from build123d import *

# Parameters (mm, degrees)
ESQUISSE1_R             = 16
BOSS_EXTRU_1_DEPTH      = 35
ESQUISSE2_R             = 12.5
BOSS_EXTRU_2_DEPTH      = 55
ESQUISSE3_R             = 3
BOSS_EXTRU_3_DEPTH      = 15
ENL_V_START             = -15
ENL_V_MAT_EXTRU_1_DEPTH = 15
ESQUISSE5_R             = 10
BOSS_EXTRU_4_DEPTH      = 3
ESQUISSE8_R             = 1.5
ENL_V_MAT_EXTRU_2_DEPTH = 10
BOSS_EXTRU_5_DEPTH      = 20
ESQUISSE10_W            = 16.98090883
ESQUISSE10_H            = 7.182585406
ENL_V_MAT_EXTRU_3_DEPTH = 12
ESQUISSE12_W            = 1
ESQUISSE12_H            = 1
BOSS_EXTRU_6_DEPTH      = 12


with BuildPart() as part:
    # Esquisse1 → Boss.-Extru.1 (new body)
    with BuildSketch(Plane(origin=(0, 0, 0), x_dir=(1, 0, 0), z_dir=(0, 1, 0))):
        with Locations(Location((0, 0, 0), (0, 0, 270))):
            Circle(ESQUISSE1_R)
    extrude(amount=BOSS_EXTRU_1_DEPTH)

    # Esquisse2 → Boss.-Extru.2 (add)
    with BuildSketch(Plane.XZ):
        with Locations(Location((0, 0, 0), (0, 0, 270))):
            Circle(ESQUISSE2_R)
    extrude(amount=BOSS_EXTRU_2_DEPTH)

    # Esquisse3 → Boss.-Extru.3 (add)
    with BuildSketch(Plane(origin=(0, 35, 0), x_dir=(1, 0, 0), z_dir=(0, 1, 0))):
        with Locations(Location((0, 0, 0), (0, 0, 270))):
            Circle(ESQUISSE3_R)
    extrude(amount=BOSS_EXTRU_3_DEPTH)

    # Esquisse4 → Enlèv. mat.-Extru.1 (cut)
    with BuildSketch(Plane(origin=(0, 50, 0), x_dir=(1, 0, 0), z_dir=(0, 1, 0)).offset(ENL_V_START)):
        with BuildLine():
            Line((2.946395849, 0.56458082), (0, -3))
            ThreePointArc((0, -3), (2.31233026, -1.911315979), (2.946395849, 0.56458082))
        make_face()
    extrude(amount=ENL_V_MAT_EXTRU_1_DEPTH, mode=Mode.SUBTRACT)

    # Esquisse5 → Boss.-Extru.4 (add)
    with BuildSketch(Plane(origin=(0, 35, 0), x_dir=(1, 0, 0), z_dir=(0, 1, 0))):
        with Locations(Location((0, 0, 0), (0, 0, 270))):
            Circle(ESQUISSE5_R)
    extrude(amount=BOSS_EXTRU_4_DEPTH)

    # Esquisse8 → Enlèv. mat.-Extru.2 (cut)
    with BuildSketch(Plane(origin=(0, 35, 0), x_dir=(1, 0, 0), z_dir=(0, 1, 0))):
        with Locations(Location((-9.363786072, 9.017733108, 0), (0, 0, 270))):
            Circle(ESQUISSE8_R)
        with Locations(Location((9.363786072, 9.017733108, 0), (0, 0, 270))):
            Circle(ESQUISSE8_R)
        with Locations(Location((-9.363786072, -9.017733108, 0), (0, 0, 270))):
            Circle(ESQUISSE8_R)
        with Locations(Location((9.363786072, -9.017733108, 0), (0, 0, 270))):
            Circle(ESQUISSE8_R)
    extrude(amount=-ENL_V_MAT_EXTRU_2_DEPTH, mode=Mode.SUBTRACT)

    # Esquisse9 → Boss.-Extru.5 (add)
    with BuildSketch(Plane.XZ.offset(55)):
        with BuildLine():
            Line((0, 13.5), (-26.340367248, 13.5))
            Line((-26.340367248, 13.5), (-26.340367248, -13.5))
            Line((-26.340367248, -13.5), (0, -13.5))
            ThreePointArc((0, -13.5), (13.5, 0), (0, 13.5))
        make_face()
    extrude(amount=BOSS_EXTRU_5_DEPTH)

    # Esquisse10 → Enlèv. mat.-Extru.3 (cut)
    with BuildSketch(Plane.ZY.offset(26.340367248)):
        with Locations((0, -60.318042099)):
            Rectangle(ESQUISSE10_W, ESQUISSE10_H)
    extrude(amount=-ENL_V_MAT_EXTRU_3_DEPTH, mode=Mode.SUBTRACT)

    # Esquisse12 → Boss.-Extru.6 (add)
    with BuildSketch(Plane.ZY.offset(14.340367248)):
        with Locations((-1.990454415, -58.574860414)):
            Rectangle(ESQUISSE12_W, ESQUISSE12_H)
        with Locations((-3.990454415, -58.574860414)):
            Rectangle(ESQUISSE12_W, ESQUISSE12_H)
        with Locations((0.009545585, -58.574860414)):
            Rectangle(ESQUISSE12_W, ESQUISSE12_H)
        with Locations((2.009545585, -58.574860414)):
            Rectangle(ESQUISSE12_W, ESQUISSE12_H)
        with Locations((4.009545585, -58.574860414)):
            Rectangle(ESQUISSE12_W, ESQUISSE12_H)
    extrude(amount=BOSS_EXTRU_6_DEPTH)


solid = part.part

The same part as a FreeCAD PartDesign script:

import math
import FreeCAD as App
import Part
import Sketcher

V = App.Vector


def add_polygon(sketch, points):
    """Adds a closed chain of lines whose ends are joined by coincident constraints."""
    first, n = sketch.GeometryCount, len(points)
    for a, b in zip(points, points[1:] + points[:1]):
        sketch.addGeometry(Part.LineSegment(App.Vector(*a, 0), App.Vector(*b, 0)), False)
    for i in range(n):
        sketch.addConstraint(Sketcher.Constraint("Coincident", first + i, 2, first + (i + 1) % n, 1))

doc = App.newDocument("Part")
body = doc.addObject("PartDesign::Body", "Body")

# Sketch on XZ plane
sketch1 = doc.addObject("Sketcher::SketchObject", "Sketch")
body.addObject(sketch1)
sketch1.AttachmentSupport = (doc.XZ_Plane, [""])
sketch1.MapMode = "FlatFace"
sketch1.addGeometry(Part.Circle(V(0, 0, 0), V(0, 0, 1), 16), False)
sketch1.addConstraint(Sketcher.Constraint("Coincident", 0, 3, -1, 1))
sketch1.addConstraint(Sketcher.Constraint("Diameter", 0, 32.0))
pad1 = doc.addObject("PartDesign::Pad", "Pad")
body.addObject(pad1)
pad1.Profile = sketch1
pad1.Length = 35
pad1.Reversed = True

# Sketch on XZ plane
sketch2 = doc.addObject("Sketcher::SketchObject", "Sketch001")
body.addObject(sketch2)
sketch2.AttachmentSupport = (doc.XZ_Plane, [""])
sketch2.MapMode = "FlatFace"
sketch2.addGeometry(Part.Circle(V(0, 0, 0), V(0, 0, 1), 12.5), False)
sketch2.addConstraint(Sketcher.Constraint("Coincident", 0, 3, -1, 1))
sketch2.addConstraint(Sketcher.Constraint("Diameter", 0, 25.0))
pad2 = doc.addObject("PartDesign::Pad", "Pad001")
body.addObject(pad2)
pad2.Profile = sketch2
pad2.Length = 55

# Sketch on XZ plane
sketch3 = doc.addObject("Sketcher::SketchObject", "Sketch002")
body.addObject(sketch3)
sketch3.AttachmentSupport = (doc.XZ_Plane, [""])
sketch3.MapMode = "FlatFace"
sketch3.AttachmentOffset = App.Placement(V(0, 0, -35), App.Rotation())
sketch3.addGeometry(Part.Circle(V(0, 0, 0), V(0, 0, 1), 3), False)
sketch3.addConstraint(Sketcher.Constraint("Coincident", 0, 3, -1, 1))
sketch3.addConstraint(Sketcher.Constraint("Diameter", 0, 6.0))
pad3 = doc.addObject("PartDesign::Pad", "Pad002")
body.addObject(pad3)
pad3.Profile = sketch3
pad3.Length = 15
pad3.Reversed = True

# Sketch on XZ plane
sketch4 = doc.addObject("Sketcher::SketchObject", "Sketch003")
body.addObject(sketch4)
sketch4.AttachmentSupport = (doc.XZ_Plane, [""])
sketch4.MapMode = "FlatFace"
sketch4.AttachmentOffset = App.Placement(V(0, 0, -35), App.Rotation())
sketch4.addGeometry(Part.LineSegment(V(2.946396, -0.564581, 0), V(0, 3, 0)), False)
sketch4.addGeometry(Part.ArcOfCircle(Part.Circle(V(0, 0, 0), V(0, 0, 1), 3), math.radians(-10.847384), math.radians(90)), False)
sketch4.addConstraint(Sketcher.Constraint("Coincident", 0, 1, 1, 1))
sketch4.addConstraint(Sketcher.Constraint("Coincident", 1, 2, 0, 2))
sketch4.addConstraint(Sketcher.Constraint("Coincident", 1, 3, -1, 1))
sketch4.addConstraint(Sketcher.Constraint("PointOnObject", 1, 2, -2))
sketch4.addConstraint(Sketcher.Constraint("Radius", 1, 3.0))
sketch4.addConstraint(Sketcher.Constraint("Distance", 0, 4.624661))
pocket1 = doc.addObject("PartDesign::Pocket", "Pocket")
body.addObject(pocket1)
pocket1.Profile = sketch4
pocket1.Length = 15

# Sketch on XZ plane
sketch5 = doc.addObject("Sketcher::SketchObject", "Sketch004")
body.addObject(sketch5)
sketch5.AttachmentSupport = (doc.XZ_Plane, [""])
sketch5.MapMode = "FlatFace"
sketch5.AttachmentOffset = App.Placement(V(0, 0, -35), App.Rotation())
sketch5.addGeometry(Part.Circle(V(0, 0, 0), V(0, 0, 1), 10), False)
sketch5.addConstraint(Sketcher.Constraint("Coincident", 0, 3, -1, 1))
sketch5.addConstraint(Sketcher.Constraint("Diameter", 0, 20.0))
pad4 = doc.addObject("PartDesign::Pad", "Pad003")
body.addObject(pad4)
pad4.Profile = sketch5
pad4.Length = 3
pad4.Reversed = True

# Sketch on XZ plane
sketch6 = doc.addObject("Sketcher::SketchObject", "Sketch005")
body.addObject(sketch6)
sketch6.AttachmentSupport = (doc.XZ_Plane, [""])
sketch6.MapMode = "FlatFace"
sketch6.AttachmentOffset = App.Placement(V(0, 0, -35), App.Rotation())
sketch6.addGeometry(Part.Circle(V(-9.363786, -9.017733, 0), V(0, 0, 1), 1.5), False)
sketch6.addGeometry(Part.Circle(V(9.363786, -9.017733, 0), V(0, 0, 1), 1.5), False)
sketch6.addGeometry(Part.Circle(V(-9.363786, 9.017733, 0), V(0, 0, 1), 1.5), False)
sketch6.addGeometry(Part.Circle(V(9.363786, 9.017733, 0), V(0, 0, 1), 1.5), False)
sketch6.addConstraint(Sketcher.Constraint("Equal", 0, 1))
sketch6.addConstraint(Sketcher.Constraint("Equal", 1, 2))
sketch6.addConstraint(Sketcher.Constraint("Equal", 2, 3))
sketch6.addConstraint(Sketcher.Constraint("Symmetric", 1, 3, 2, 3, -1, 1))
sketch6.addConstraint(Sketcher.Constraint("Symmetric", 0, 3, 3, 3, -1, 1))
sketch6.addConstraint(Sketcher.Constraint("Symmetric", 0, 3, 1, 3, -2))
sketch6.addConstraint(Sketcher.Constraint("Diameter", 0, 3.0))
sketch6.addConstraint(Sketcher.Constraint("DistanceX", 0, 3, -1, 1, 9.363786))
sketch6.addConstraint(Sketcher.Constraint("DistanceY", 0, 3, -1, 1, 9.017733))
pocket2 = doc.addObject("PartDesign::Pocket", "Pocket001")
body.addObject(pocket2)
pocket2.Profile = sketch6
pocket2.Length = 10
pocket2.Reversed = True

# Sketch on XZ plane
sketch7 = doc.addObject("Sketcher::SketchObject", "Sketch006")
body.addObject(sketch7)
sketch7.AttachmentSupport = (doc.XZ_Plane, [""])
sketch7.MapMode = "FlatFace"
sketch7.AttachmentOffset = App.Placement(V(0, 0, 55), App.Rotation())
sketch7.addGeometry(Part.LineSegment(V(0, 13.5, 0), V(-26.340367, 13.5, 0)), False)
sketch7.addGeometry(Part.LineSegment(V(-26.340367, 13.5, 0), V(-26.340367, -13.5, 0)), False)
sketch7.addGeometry(Part.LineSegment(V(-26.340367, -13.5, 0), V(0, -13.5, 0)), False)
sketch7.addGeometry(Part.ArcOfCircle(Part.Circle(V(0, 0, 0), V(0, 0, 1), 13.5), math.radians(-90), math.radians(90)), False)
sketch7.addConstraint(Sketcher.Constraint("Coincident", 0, 2, 1, 1))
sketch7.addConstraint(Sketcher.Constraint("Coincident", 1, 2, 2, 1))
sketch7.addConstraint(Sketcher.Constraint("Tangent", 2, 2, 3, 1))
sketch7.addConstraint(Sketcher.Constraint("Tangent", 3, 2, 0, 1))
sketch7.addConstraint(Sketcher.Constraint("Horizontal", 0))
sketch7.addConstraint(Sketcher.Constraint("Vertical", 1))
sketch7.addConstraint(Sketcher.Constraint("Horizontal", 2))
sketch7.addConstraint(Sketcher.Constraint("Coincident", 3, 3, -1, 1))
sketch7.addConstraint(Sketcher.Constraint("Radius", 3, 13.5))
sketch7.addConstraint(Sketcher.Constraint("DistanceX", 0, 2, 0, 1, 26.340367))
pad5 = doc.addObject("PartDesign::Pad", "Pad004")
body.addObject(pad5)
pad5.Profile = sketch7
pad5.Length = 20

# Sketch on YZ plane
sketch8 = doc.addObject("Sketcher::SketchObject", "Sketch007")
body.addObject(sketch8)
sketch8.AttachmentSupport = (doc.YZ_Plane, [""])
sketch8.MapMode = "FlatFace"
sketch8.AttachmentOffset = App.Placement(V(0, 0, -26.340367), App.Rotation())
add_polygon(sketch8, [(-56.726749, -8.490454), (-63.909335, -8.490454), (-63.909335, 8.490454), (-56.726749, 8.490454)])  # lines 0-3
sketch8.addConstraint(Sketcher.Constraint("Horizontal", 0))
sketch8.addConstraint(Sketcher.Constraint("Vertical", 1))
sketch8.addConstraint(Sketcher.Constraint("Horizontal", 2))
sketch8.addConstraint(Sketcher.Constraint("Vertical", 3))
sketch8.addConstraint(Sketcher.Constraint("DistanceY", 1, 1, 1, 2, 16.980909))
sketch8.addConstraint(Sketcher.Constraint("DistanceX", 0, 2, 0, 1, 7.182585))
sketch8.addConstraint(Sketcher.Constraint("DistanceX", 2, 2, -1, 1, 56.726749))
sketch8.addConstraint(Sketcher.Constraint("DistanceY", 0, 2, -1, 1, 8.490454))
pocket3 = doc.addObject("PartDesign::Pocket", "Pocket002")
body.addObject(pocket3)
pocket3.Profile = sketch8
pocket3.Length = 12
pocket3.Reversed = True

# Sketch on YZ plane
sketch9 = doc.addObject("Sketcher::SketchObject", "Sketch008")
body.addObject(sketch9)
sketch9.AttachmentSupport = (doc.YZ_Plane, [""])
sketch9.MapMode = "FlatFace"
sketch9.AttachmentOffset = App.Placement(V(0, 0, -14.340367), App.Rotation())
add_polygon(sketch9, [(-58.07486, -2.490454), (-59.07486, -2.490454), (-59.07486, -1.490454), (-58.07486, -1.490454)])  # lines 0-3
add_polygon(sketch9, [(-58.07486, -4.490454), (-59.07486, -4.490454), (-59.07486, -3.490454), (-58.07486, -3.490454)])  # lines 4-7
add_polygon(sketch9, [(-58.07486, -0.490454), (-59.07486, -0.490454), (-59.07486, 0.509546), (-58.07486, 0.509546)])  # lines 8-11
add_polygon(sketch9, [(-58.07486, 1.509546), (-59.07486, 1.509546), (-59.07486, 2.509546), (-58.07486, 2.509546)])  # lines 12-15
add_polygon(sketch9, [(-58.07486, 3.509546), (-59.07486, 3.509546), (-59.07486, 4.509546), (-58.07486, 4.509546)])  # lines 16-19
sketch9.addConstraint(Sketcher.Constraint("Horizontal", 0))
sketch9.addConstraint(Sketcher.Constraint("Vertical", 1))
sketch9.addConstraint(Sketcher.Constraint("Horizontal", 2))
sketch9.addConstraint(Sketcher.Constraint("Vertical", 3))
sketch9.addConstraint(Sketcher.Constraint("Horizontal", 4))
sketch9.addConstraint(Sketcher.Constraint("Vertical", 5))
sketch9.addConstraint(Sketcher.Constraint("Horizontal", 6))
sketch9.addConstraint(Sketcher.Constraint("Vertical", 7))
sketch9.addConstraint(Sketcher.Constraint("Horizontal", 8))
sketch9.addConstraint(Sketcher.Constraint("Vertical", 9))
sketch9.addConstraint(Sketcher.Constraint("Horizontal", 10))
sketch9.addConstraint(Sketcher.Constraint("Vertical", 11))
sketch9.addConstraint(Sketcher.Constraint("Horizontal", 12))
sketch9.addConstraint(Sketcher.Constraint("Vertical", 13))
sketch9.addConstraint(Sketcher.Constraint("Horizontal", 14))
sketch9.addConstraint(Sketcher.Constraint("Vertical", 15))
sketch9.addConstraint(Sketcher.Constraint("Horizontal", 16))
sketch9.addConstraint(Sketcher.Constraint("Vertical", 17))
sketch9.addConstraint(Sketcher.Constraint("Horizontal", 18))
sketch9.addConstraint(Sketcher.Constraint("Vertical", 19))
sketch9.addConstraint(Sketcher.Constraint("Vertical", 1, 2, 4, 2))
sketch9.addConstraint(Sketcher.Constraint("Vertical", 3, 2, 6, 2))
sketch9.addConstraint(Sketcher.Constraint("Vertical", 5, 2, 8, 2))
sketch9.addConstraint(Sketcher.Constraint("Vertical", 7, 2, 10, 2))
sketch9.addConstraint(Sketcher.Constraint("Vertical", 9, 2, 12, 2))
sketch9.addConstraint(Sketcher.Constraint("Vertical", 11, 2, 14, 2))
sketch9.addConstraint(Sketcher.Constraint("Vertical", 13, 2, 16, 2))
sketch9.addConstraint(Sketcher.Constraint("Vertical", 15, 2, 18, 2))
sketch9.addConstraint(Sketcher.Constraint("Equal", 18, 1))
sketch9.addConstraint(Sketcher.Constraint("Equal", 3, 5))
sketch9.addConstraint(Sketcher.Constraint("Equal", 7, 9))
sketch9.addConstraint(Sketcher.Constraint("Equal", 11, 13))
sketch9.addConstraint(Sketcher.Constraint("Equal", 15, 17))
sketch9.addConstraint(Sketcher.Constraint("DistanceX", 0, 2, 0, 1, 1.0))
sketch9.addConstraint(Sketcher.Constraint("DistanceY", 4, 2, 0, 2, 2.0))
sketch9.addConstraint(Sketcher.Constraint("DistanceY", 1, 2, 8, 2, 1.0))
sketch9.addConstraint(Sketcher.Constraint("DistanceY", 9, 2, 12, 2, 1.0))
sketch9.addConstraint(Sketcher.Constraint("DistanceY", 13, 2, 16, 2, 1.0))
sketch9.addConstraint(Sketcher.Constraint("DistanceX", 0, 2, -1, 1, 59.07486))
sketch9.addConstraint(Sketcher.Constraint("DistanceY", 0, 2, -1, 1, 2.490454))
pad6 = doc.addObject("PartDesign::Pad", "Pad005")
body.addObject(pad6)
pad6.Profile = sketch9
pad6.Length = 12
pad6.Reversed = True

doc.recompute()
